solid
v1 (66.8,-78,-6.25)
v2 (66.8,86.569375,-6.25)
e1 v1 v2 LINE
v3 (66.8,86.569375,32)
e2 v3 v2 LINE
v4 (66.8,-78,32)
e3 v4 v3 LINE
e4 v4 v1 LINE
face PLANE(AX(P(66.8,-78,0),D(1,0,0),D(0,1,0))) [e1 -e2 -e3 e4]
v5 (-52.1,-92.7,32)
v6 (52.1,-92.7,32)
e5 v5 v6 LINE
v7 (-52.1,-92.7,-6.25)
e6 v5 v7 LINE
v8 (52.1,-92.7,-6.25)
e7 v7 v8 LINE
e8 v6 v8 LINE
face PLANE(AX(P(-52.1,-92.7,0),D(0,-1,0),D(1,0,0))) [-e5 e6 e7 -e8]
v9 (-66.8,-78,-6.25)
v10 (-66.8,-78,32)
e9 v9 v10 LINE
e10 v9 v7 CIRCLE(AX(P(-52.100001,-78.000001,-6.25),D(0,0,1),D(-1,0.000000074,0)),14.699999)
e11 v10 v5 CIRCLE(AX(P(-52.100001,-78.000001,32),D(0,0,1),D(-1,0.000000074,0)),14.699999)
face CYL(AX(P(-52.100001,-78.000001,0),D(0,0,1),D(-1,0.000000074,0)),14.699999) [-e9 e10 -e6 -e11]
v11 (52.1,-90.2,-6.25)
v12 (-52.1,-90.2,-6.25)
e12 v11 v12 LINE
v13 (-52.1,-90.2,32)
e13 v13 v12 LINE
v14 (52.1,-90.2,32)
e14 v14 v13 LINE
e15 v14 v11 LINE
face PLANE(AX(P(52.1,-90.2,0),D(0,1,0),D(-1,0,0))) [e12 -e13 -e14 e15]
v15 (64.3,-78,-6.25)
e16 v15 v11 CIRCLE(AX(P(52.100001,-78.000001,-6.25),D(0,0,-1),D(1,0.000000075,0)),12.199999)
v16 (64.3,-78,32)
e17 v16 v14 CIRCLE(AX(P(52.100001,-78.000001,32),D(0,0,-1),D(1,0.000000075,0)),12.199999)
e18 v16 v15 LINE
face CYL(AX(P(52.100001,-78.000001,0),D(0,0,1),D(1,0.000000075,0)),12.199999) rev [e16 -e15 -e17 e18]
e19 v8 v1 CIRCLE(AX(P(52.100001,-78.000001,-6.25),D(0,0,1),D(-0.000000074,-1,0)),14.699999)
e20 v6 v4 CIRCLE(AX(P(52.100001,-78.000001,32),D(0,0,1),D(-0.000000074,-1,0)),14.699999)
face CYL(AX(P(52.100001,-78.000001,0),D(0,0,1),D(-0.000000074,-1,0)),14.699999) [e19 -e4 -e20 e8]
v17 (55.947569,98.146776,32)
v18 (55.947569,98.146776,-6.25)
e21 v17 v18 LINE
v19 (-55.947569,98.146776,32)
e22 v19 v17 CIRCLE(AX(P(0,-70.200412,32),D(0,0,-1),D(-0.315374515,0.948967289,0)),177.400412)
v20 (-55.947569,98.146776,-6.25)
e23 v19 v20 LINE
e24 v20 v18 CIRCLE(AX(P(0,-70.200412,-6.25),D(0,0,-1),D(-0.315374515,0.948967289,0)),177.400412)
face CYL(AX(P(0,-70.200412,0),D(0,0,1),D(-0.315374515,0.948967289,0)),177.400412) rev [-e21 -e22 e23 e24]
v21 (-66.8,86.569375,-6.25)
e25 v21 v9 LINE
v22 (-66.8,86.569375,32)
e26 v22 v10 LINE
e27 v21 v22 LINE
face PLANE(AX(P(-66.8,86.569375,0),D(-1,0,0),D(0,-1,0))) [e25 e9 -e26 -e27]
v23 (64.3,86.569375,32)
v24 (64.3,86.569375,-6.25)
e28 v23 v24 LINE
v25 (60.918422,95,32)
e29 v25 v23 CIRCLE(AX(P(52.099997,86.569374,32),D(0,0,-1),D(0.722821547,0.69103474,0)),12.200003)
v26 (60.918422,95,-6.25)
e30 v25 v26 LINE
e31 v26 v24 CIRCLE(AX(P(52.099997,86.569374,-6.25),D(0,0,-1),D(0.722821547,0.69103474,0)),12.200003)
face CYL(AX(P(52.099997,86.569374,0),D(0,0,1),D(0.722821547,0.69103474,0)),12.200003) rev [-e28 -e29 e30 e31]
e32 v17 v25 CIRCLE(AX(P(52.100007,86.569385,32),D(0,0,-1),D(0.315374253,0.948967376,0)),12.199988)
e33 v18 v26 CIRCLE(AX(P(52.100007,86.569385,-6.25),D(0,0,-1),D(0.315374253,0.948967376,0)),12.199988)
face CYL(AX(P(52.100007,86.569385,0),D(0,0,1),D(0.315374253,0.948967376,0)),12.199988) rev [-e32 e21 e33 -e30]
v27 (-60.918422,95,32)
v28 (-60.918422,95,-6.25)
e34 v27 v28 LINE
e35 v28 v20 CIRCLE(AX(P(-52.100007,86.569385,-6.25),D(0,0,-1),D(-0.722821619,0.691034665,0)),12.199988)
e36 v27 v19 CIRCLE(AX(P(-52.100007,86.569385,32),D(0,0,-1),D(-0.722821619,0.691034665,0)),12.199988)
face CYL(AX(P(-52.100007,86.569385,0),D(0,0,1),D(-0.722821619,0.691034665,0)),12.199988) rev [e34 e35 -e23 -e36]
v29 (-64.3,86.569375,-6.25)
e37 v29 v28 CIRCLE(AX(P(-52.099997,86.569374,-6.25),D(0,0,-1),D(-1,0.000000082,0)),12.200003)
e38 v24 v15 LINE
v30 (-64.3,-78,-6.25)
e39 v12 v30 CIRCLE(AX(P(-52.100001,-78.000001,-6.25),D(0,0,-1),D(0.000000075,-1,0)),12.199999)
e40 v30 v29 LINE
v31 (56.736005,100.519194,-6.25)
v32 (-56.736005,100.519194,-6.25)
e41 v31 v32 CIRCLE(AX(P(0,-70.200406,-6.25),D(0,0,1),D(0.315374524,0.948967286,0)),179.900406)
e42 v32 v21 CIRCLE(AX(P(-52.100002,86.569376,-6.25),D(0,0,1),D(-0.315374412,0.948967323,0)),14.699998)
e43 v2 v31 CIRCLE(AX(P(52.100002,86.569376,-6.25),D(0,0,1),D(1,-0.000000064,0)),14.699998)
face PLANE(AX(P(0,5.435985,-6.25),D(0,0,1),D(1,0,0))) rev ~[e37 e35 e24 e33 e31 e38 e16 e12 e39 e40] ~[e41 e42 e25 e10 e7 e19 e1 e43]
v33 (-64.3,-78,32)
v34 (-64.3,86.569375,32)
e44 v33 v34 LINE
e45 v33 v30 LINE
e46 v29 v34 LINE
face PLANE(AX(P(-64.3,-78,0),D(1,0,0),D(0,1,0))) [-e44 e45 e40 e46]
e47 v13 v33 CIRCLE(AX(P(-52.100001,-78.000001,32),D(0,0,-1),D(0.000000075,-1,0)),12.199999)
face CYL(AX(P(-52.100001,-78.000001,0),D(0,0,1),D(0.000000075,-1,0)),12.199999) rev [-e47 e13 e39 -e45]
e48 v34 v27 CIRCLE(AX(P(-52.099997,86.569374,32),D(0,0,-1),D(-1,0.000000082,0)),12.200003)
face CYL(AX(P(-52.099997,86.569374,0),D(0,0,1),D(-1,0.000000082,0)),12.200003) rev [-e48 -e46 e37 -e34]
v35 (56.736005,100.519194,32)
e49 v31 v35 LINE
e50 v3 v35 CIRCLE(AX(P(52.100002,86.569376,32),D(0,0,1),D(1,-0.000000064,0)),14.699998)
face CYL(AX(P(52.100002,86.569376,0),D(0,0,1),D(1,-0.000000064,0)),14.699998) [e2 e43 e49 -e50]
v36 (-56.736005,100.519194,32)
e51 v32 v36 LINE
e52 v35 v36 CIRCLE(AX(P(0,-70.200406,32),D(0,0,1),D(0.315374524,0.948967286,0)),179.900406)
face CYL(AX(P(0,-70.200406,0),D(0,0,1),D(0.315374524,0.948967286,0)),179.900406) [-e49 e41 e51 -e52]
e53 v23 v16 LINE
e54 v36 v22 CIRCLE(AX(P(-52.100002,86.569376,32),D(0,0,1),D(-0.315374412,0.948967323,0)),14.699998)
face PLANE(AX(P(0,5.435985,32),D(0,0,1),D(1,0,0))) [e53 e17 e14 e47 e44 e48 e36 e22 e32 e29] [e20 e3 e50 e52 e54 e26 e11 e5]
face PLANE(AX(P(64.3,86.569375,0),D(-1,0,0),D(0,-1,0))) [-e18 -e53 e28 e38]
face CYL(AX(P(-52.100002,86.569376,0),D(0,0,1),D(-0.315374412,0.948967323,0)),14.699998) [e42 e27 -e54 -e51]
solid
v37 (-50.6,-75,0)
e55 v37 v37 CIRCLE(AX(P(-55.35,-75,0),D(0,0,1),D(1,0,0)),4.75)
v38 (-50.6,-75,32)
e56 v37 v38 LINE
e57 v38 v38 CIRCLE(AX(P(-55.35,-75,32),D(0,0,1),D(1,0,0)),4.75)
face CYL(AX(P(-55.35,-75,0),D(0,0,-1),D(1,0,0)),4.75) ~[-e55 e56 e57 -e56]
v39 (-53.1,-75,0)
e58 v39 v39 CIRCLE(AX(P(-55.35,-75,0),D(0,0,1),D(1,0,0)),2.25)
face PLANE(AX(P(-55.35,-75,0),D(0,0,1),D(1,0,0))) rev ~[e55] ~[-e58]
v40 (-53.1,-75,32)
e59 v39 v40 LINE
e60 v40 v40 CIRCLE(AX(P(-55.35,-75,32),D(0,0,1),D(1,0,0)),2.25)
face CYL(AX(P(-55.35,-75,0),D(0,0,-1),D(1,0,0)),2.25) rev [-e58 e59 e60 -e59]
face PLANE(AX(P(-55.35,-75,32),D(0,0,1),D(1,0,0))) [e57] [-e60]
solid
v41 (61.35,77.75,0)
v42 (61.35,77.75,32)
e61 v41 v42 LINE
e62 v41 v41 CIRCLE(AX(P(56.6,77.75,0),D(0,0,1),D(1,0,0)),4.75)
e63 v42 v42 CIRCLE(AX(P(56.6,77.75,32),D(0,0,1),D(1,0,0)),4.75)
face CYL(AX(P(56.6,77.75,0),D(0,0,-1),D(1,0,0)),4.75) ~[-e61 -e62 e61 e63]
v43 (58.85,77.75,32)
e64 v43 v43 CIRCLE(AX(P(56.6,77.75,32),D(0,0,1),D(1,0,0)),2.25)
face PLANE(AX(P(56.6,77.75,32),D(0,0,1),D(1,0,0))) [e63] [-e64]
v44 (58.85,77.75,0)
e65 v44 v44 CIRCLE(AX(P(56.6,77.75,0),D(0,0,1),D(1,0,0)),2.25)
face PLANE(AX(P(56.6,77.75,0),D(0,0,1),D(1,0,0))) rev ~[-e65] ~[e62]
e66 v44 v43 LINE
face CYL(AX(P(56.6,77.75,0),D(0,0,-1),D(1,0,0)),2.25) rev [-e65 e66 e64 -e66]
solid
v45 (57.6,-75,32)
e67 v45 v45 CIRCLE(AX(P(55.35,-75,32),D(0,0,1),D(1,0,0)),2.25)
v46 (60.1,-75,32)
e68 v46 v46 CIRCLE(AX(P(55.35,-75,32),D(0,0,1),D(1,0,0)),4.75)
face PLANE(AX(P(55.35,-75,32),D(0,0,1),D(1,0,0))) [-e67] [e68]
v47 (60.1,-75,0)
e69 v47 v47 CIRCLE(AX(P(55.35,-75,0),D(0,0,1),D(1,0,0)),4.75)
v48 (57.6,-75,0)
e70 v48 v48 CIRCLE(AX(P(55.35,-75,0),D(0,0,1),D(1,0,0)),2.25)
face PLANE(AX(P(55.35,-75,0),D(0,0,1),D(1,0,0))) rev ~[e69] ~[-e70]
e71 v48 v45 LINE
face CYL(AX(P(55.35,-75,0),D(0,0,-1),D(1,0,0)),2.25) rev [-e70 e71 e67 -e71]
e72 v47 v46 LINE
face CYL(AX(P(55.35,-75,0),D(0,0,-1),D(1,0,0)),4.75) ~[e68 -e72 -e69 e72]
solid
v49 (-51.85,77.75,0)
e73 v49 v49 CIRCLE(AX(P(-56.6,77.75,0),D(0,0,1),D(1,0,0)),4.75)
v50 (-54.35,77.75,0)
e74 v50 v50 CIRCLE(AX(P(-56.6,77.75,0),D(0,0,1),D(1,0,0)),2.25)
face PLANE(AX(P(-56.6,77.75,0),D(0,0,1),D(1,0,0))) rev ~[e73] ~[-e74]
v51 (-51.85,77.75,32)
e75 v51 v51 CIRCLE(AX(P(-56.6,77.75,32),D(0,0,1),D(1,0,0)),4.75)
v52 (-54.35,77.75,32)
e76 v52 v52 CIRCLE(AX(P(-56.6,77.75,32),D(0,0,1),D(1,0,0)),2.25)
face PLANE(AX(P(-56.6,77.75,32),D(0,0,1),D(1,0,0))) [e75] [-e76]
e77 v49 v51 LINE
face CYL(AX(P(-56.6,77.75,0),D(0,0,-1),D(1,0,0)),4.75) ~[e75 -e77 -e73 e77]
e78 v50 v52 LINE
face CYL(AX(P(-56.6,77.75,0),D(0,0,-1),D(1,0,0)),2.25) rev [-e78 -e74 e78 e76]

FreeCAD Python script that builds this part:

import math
import FreeCAD as App
import Part
import Sketcher

doc = App.newDocument("Part")
body = doc.addObject("PartDesign::Body", "Body")
body.AllowCompound = True

# Sketch on XY plane
sketch1 = body.newObject("Sketcher::SketchObject", "Sketch")
sketch1.AttachmentSupport = (doc.getObject("XY_Plane"), [""])
sketch1.MapMode = "FlatFace"
sketch1.addGeometry([
    Part.Circle(App.Vector(-56.6, 77.8, 0), App.Vector(0, 0, 1), 4.8),  # 0
    Part.Circle(App.Vector(-56.6, 77.8, 0), App.Vector(0, 0, 1), 2.2),  # 1
    Part.Circle(App.Vector(56.6, 77.8, 0), App.Vector(0, 0, 1), 4.8),  # 2
    Part.Circle(App.Vector(56.6, 77.8, 0), App.Vector(0, 0, 1), 2.2),  # 3
    Part.Circle(App.Vector(55.4, -75, 0), App.Vector(0, 0, 1), 4.8),  # 4
    Part.Circle(App.Vector(55.4, -75, 0), App.Vector(0, 0, 1), 2.2),  # 5
    Part.Circle(App.Vector(-55.4, -75, 0), App.Vector(0, 0, 1), 4.8),  # 6
    Part.Circle(App.Vector(-55.4, -75, 0), App.Vector(0, 0, 1), 2.2),  # 7
], False)
sketch1.addConstraint([
    Sketcher.Constraint("Coincident", 1, 3, 0, 3),
    Sketcher.Constraint("Coincident", 3, 3, 2, 3),
    Sketcher.Constraint("Coincident", 5, 3, 4, 3),
    Sketcher.Constraint("Coincident", 7, 3, 6, 3),
    Sketcher.Constraint("Equal", 0, 2),
    Sketcher.Constraint("Equal", 1, 3),
    Sketcher.Constraint("Equal", 2, 4),
    Sketcher.Constraint("Equal", 3, 5),
    Sketcher.Constraint("Equal", 4, 6),
    Sketcher.Constraint("Equal", 5, 7),
    Sketcher.Constraint("Symmetric", 0, 3, 2, 3, -2),
    Sketcher.Constraint("Symmetric", 4, 3, 6, 3, -2),
    Sketcher.Constraint("Diameter", 0, 9.5),
    Sketcher.Constraint("Diameter", 1, 4.5),
    Sketcher.Constraint("DistanceY", 4, 3, -1, 1, 75.0),
    Sketcher.Constraint("DistanceX", 0, 3, -1, 1, 56.6),
    Sketcher.Constraint("DistanceX", 6, 3, 4, 3, 110.7),
    Sketcher.Constraint("DistanceY", -1, 1, 0, 3, 77.75),
])
pad1 = body.newObject("PartDesign::Pad", "Pad")
pad1.Profile = sketch1
pad1.Length = 32
body2 = doc.addObject("PartDesign::Body", "Body001")

# Sketch on XY plane
sketch2 = body2.newObject("Sketcher::SketchObject", "Sketch001")
sketch2.AttachmentSupport = (doc.getObject("XY_Plane001"), [""])
sketch2.MapMode = "FlatFace"
sketch2.addGeometry([
    Part.ArcOfCircle(Part.Circle(App.Vector(52, 87, 0), App.Vector(0, 0, 1), 15), math.radians(0), math.radians(72)),  # 0
    Part.ArcOfCircle(Part.Circle(App.Vector(0, -70, 0), App.Vector(0, 0, 1), 180), math.radians(72), math.radians(108)),  # 1
    Part.ArcOfCircle(Part.Circle(App.Vector(-52, 87, 0), App.Vector(0, 0, 1), 15), math.radians(108), math.radians(180)),  # 2
    Part.LineSegment(App.Vector(-67, 87, 0), App.Vector(-67, -78, 0)),  # 3
    Part.ArcOfCircle(Part.Circle(App.Vector(-52, -78, 0), App.Vector(0, 0, 1), 15), math.radians(180), math.radians(270)),  # 4
    Part.LineSegment(App.Vector(-52, -93, 0), App.Vector(52, -93, 0)),  # 5
    Part.ArcOfCircle(Part.Circle(App.Vector(52, -78, 0), App.Vector(0, 0, 1), 15), math.radians(-90), math.radians(0)),  # 6
    Part.LineSegment(App.Vector(67, -78, 0), App.Vector(67, 87, 0)),  # 7
    Part.LineSegment(App.Vector(-64, -78, 0), App.Vector(-64, 87, 0)),  # 8
    Part.ArcOfCircle(Part.Circle(App.Vector(-52, 87, 0), App.Vector(0, 0, 1), 12), math.radians(136), math.radians(180)),  # 9
    Part.ArcOfCircle(Part.Circle(App.Vector(-52, 87, 0), App.Vector(0, 0, 1), 12), math.radians(108), math.radians(136)),  # 10
    Part.ArcOfCircle(Part.Circle(App.Vector(0, -70, 0), App.Vector(0, 0, 1), 177), math.radians(72), math.radians(108)),  # 11
    Part.ArcOfCircle(Part.Circle(App.Vector(52, 87, 0), App.Vector(0, 0, 1), 12), math.radians(44), math.radians(72)),  # 12
    Part.ArcOfCircle(Part.Circle(App.Vector(52, 87, 0), App.Vector(0, 0, 1), 12), math.radians(0), math.radians(44)),  # 13
    Part.LineSegment(App.Vector(64, 87, 0), App.Vector(64, -78, 0)),  # 14
    Part.ArcOfCircle(Part.Circle(App.Vector(52, -78, 0), App.Vector(0, 0, 1), 12), math.radians(-90), math.radians(0)),  # 15
    Part.LineSegment(App.Vector(52, -90, 0), App.Vector(-52, -90, 0)),  # 16
    Part.ArcOfCircle(Part.Circle(App.Vector(-52, -78, 0), App.Vector(0, 0, 1), 12), math.radians(180), math.radians(270)),  # 17
], False)
sketch2.addConstraint([
    Sketcher.Constraint("Tangent", 0, 2, 1, 1),
    Sketcher.Constraint("Tangent", 1, 2, 2, 1),
    Sketcher.Constraint("Tangent", 2, 2, 3, 1),
    Sketcher.Constraint("Tangent", 3, 2, 4, 1),
    Sketcher.Constraint("Tangent", 4, 2, 5, 1),
    Sketcher.Constraint("Tangent", 5, 2, 6, 1),
    Sketcher.Constraint("Tangent", 6, 2, 7, 1),
    Sketcher.Constraint("Tangent", 7, 2, 0, 1),
    Sketcher.Constraint("Tangent", 8, 2, 9, 2),
    Sketcher.Constraint("Tangent", 9, 1, 10, 2),
    Sketcher.Constraint("Tangent", 10, 1, 11, 2),
    Sketcher.Constraint("Tangent", 11, 1, 12, 2),
    Sketcher.Constraint("Tangent", 12, 1, 13, 2),
    Sketcher.Constraint("Tangent", 13, 1, 14, 1),
    Sketcher.Constraint("Tangent", 14, 2, 15, 2),
    Sketcher.Constraint("Tangent", 15, 1, 16, 1),
    Sketcher.Constraint("Tangent", 16, 2, 17, 2),
    Sketcher.Constraint("Tangent", 17, 1, 8, 1),
    Sketcher.Constraint("Vertical", 3),
    Sketcher.Constraint("Horizontal", 5),
    Sketcher.Constraint("Vertical", 7),
    Sketcher.Constraint("Vertical", 8),
    Sketcher.Constraint("Vertical", 14),
    Sketcher.Constraint("Horizontal", 16),
    Sketcher.Constraint("Coincident", 9, 3, 2, 3),
    Sketcher.Constraint("Coincident", 11, 3, 1, 3),
    Sketcher.Constraint("Coincident", 13, 3, 0, 3),
    Sketcher.Constraint("Coincident", 15, 3, 6, 3),
    Sketcher.Constraint("Coincident", 17, 3, 4, 3),
    Sketcher.Constraint("Equal", 0, 2),
    Sketcher.Constraint("Equal", 2, 4),
    Sketcher.Constraint("Equal", 4, 6),
    Sketcher.Constraint("Symmetric", 0, 3, 2, 3, -2),
    Sketcher.Constraint("Horizontal", 9, 1, 12, 1),
    Sketcher.Constraint("Radius", 0, 14.699998),
    Sketcher.Constraint("Radius", 15, 12.199999),
    Sketcher.Constraint("DistanceX", 5, 1, 5, 2, 104.2),
    Sketcher.Constraint("DistanceY", 4, 3, -1, 1, 78.000001),
    Sketcher.Constraint("DistanceY", -1, 1, 9, 1, 95.0),
    Sketcher.Constraint("Radius", 10, 12.199988),
    Sketcher.Constraint("Radius", 1, 179.900406),
    Sketcher.Constraint("DistanceY", 3, 2, 3, 1, 164.569375),
])
pad2 = body2.newObject("PartDesign::Pad", "Pad001")
pad2.Profile = sketch2
pad2.Type = "TwoLengths"
pad2.Length = 32
pad2.Length2 = 6.25

doc.recompute()
